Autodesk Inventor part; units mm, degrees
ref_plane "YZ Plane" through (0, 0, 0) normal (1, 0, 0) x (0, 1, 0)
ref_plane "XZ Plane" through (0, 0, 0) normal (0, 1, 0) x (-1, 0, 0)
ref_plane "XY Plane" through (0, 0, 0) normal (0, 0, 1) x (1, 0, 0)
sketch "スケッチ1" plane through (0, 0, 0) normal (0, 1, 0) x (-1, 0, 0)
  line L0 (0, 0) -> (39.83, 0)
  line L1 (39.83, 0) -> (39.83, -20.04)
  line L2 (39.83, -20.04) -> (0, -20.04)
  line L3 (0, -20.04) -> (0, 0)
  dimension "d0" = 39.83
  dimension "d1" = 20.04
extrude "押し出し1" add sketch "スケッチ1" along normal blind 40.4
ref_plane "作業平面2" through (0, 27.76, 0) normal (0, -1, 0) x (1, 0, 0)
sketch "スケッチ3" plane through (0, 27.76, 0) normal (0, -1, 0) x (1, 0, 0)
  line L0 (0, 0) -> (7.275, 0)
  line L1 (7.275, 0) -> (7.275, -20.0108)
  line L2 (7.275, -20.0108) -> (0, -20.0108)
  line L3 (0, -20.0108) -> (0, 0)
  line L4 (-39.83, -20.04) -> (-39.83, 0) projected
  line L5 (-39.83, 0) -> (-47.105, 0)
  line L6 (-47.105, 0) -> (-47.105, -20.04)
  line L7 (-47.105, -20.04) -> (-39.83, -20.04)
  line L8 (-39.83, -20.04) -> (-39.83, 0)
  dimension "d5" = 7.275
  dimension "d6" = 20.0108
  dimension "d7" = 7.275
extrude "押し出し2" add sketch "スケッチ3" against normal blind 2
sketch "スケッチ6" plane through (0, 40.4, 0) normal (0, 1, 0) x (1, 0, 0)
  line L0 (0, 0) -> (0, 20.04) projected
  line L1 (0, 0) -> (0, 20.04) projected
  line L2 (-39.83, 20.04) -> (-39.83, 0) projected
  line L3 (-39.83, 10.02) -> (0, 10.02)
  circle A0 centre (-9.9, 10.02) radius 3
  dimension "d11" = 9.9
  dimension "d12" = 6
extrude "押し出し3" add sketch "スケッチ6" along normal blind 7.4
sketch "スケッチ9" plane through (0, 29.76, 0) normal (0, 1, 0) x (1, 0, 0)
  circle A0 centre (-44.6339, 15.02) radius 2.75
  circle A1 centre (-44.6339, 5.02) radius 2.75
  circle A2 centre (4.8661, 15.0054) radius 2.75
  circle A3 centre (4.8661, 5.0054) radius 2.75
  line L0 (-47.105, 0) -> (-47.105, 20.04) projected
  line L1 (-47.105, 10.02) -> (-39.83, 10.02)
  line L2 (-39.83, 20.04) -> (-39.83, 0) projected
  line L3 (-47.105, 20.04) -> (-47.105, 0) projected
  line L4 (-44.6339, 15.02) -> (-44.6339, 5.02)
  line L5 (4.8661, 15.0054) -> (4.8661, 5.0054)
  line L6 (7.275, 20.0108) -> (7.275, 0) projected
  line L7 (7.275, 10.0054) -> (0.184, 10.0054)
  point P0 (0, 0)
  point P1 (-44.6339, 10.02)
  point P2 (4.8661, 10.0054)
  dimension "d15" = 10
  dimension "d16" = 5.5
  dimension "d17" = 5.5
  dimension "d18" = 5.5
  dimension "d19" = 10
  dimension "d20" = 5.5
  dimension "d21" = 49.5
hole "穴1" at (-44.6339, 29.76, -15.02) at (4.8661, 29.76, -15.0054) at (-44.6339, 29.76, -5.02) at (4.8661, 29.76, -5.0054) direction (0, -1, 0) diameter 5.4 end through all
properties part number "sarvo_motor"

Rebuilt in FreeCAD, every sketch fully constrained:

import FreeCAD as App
import Part
import Sketcher
from FreeCAD import Vector


def add_polygon(sketch, points):
    """Adds a closed chain of lines whose ends are joined by coincident constraints."""
    first, n = sketch.GeometryCount, len(points)
    for a, b in zip(points, points[1:] + points[:1]):
        sketch.addGeometry(Part.LineSegment(App.Vector(*a, 0), App.Vector(*b, 0)), False)
    for i in range(n):
        sketch.addConstraint(Sketcher.Constraint("Coincident", first + i, 2, first + (i + 1) % n, 1))

doc = App.newDocument("Part")
body = doc.addObject("PartDesign::Body", "Body")

# Sketch on XZ plane
sketch1 = body.newObject("Sketcher::SketchObject", "Sketch")
sketch1.AttachmentSupport = (doc.getObject("XZ_Plane"), [""])
sketch1.MapMode = "FlatFace"
add_polygon(sketch1, [(-39.83, 0), (0, 0), (0, -20.04), (-39.83, -20.04)])  # lines 0-3
sketch1.addConstraint([
    Sketcher.Constraint("Horizontal", 0),
    Sketcher.Constraint("Vertical", 1),
    Sketcher.Constraint("Horizontal", 2),
    Sketcher.Constraint("Vertical", 3),
    Sketcher.Constraint("Coincident", 0, 2, -1, 1),
    Sketcher.Constraint("DistanceX", 0, 1, 0, 2, 39.83),
    Sketcher.Constraint("DistanceY", 1, 2, 1, 1, 20.04),
])
pad1 = body.newObject("PartDesign::Pad", "Pad")
pad1.Profile = sketch1
pad1.Length = 40.4
pad1.Reversed = True

# Sketch on XZ plane
sketch2 = body.newObject("Sketcher::SketchObject", "Sketch001")
sketch2.AttachmentSupport = (doc.getObject("XZ_Plane"), [""])
sketch2.MapMode = "FlatFace"
sketch2.AttachmentOffset = App.Placement(Vector(0, 0, -27.76), App.Rotation())
add_polygon(sketch2, [(7.275, 0), (0, 0), (0, -20.0108), (7.275, -20.0108)])  # lines 0-3
add_polygon(sketch2, [(-47.105, -20.04), (-39.83, -20.04), (-39.83, 0), (-47.105, 0)])  # lines 4-7
sketch2.addConstraint([
    Sketcher.Constraint("Horizontal", 0),
    Sketcher.Constraint("Vertical", 1),
    Sketcher.Constraint("Horizontal", 2),
    Sketcher.Constraint("Vertical", 3),
    Sketcher.Constraint("Horizontal", 4),
    Sketcher.Constraint("Vertical", 5),
    Sketcher.Constraint("Horizontal", 6),
    Sketcher.Constraint("Vertical", 7),
    Sketcher.Constraint("Coincident", 0, 2, -1, 1),
    Sketcher.Constraint("PointOnObject", 5, 2, -1),
    Sketcher.Constraint("Equal", 2, 4),
    Sketcher.Constraint("DistanceX", 0, 2, 0, 1, 7.275),
    Sketcher.Constraint("DistanceY", 1, 2, 1, 1, 20.0108),
    Sketcher.Constraint("DistanceY", 5, 1, 5, 2, 20.04),
    Sketcher.Constraint("DistanceX", 4, 2, -1, 1, 39.83),
])
pad2 = body.newObject("PartDesign::Pad", "Pad001")
pad2.Profile = sketch2
pad2.Length = 2
pad2.Reversed = True

# Sketch on XZ plane
sketch3 = body.newObject("Sketcher::SketchObject", "Sketch002")
sketch3.AttachmentSupport = (doc.getObject("XZ_Plane"), [""])
sketch3.MapMode = "FlatFace"
sketch3.AttachmentOffset = App.Placement(Vector(0, 0, -40.4), App.Rotation())
sketch3.addGeometry(Part.Circle(Vector(-9.9, -10.02, 0), Vector(0, 0, 1), 3), False)
sketch3.addConstraint([
    Sketcher.Constraint("Diameter", 0, 6.0),
    Sketcher.Constraint("DistanceX", 0, 3, -1, 1, 9.9),
    Sketcher.Constraint("DistanceY", 0, 3, -1, 1, 10.02),
])
pad3 = body.newObject("PartDesign::Pad", "Pad002")
pad3.Profile = sketch3
pad3.Length = 7.4
pad3.Reversed = True

# Sketch on XZ plane
sketch4 = body.newObject("Sketcher::SketchObject", "Sketch003")
sketch4.AttachmentSupport = (doc.getObject("XZ_Plane"), [""])
sketch4.MapMode = "FlatFace"
sketch4.AttachmentOffset = App.Placement(Vector(0, 0, -29.76), App.Rotation())
sketch4.addGeometry([
    Part.Circle(Vector(-44.6339, -15.02, 0), Vector(0, 0, 1), 2.7),
    Part.Circle(Vector(4.8661, -15.0054, 0), Vector(0, 0, 1), 2.7),
    Part.Circle(Vector(-44.6339, -5.02, 0), Vector(0, 0, 1), 2.7),
    Part.Circle(Vector(4.8661, -5.0054, 0), Vector(0, 0, 1), 2.7),
], False)
sketch4.addConstraint([
    Sketcher.Constraint("Equal", 0, 1),
    Sketcher.Constraint("Equal", 1, 2),
    Sketcher.Constraint("Equal", 2, 3),
    Sketcher.Constraint("Vertical", 0, 3, 2, 3),
    Sketcher.Constraint("Vertical", 1, 3, 3, 3),
    Sketcher.Constraint("Diameter", 0, 5.4),
    Sketcher.Constraint("DistanceY", 0, 3, 2, 3, 10.0),
    Sketcher.Constraint("DistanceY", 1, 3, 3, 3, 10.0),
    Sketcher.Constraint("DistanceX", 0, 3, 1, 3, 49.5),
    Sketcher.Constraint("DistanceY", 0, 3, -1, 1, 15.02),
    Sketcher.Constraint("DistanceX", 0, 3, -1, 1, 44.634),
    Sketcher.Constraint("DistanceY", 1, 3, -1, 1, 15.0054),
])
doc.recompute()
hole = body.newObject("PartDesign::Hole", "Hole")
hole.Profile = sketch4
hole.ThreadType = "None"
hole.Diameter = 5.4
hole.DepthType = "ThroughAll"
hole.Reversed = True

doc.recompute()
